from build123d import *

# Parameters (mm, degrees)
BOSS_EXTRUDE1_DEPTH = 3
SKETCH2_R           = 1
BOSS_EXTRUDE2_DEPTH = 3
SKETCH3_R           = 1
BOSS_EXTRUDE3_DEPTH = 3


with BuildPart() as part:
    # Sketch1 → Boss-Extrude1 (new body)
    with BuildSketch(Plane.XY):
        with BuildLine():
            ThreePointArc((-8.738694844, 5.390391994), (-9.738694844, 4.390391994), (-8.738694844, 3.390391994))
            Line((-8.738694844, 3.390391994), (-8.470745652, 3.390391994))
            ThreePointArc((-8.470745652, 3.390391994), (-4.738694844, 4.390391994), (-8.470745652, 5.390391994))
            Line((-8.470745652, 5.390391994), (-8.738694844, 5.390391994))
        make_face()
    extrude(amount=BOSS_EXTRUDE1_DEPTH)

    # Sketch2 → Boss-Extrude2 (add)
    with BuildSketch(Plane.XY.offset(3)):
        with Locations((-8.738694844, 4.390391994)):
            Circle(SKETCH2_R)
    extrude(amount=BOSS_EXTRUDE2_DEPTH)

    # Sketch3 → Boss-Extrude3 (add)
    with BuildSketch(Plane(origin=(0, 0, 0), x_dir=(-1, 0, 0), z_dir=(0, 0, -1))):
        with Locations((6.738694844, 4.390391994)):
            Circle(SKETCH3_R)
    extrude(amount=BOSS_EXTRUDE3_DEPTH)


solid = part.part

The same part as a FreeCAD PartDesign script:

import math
import FreeCAD as App
import Part
import Sketcher

V = App.Vector

doc = App.newDocument("Part")
body = doc.addObject("PartDesign::Body", "Body")

# Sketch on XY plane
sketch1 = body.newObject("Sketcher::SketchObject", "Sketch")
sketch1.AttachmentSupport = (doc.getObject("XY_Plane"), [""])
sketch1.MapMode = "FlatFace"
sketch1.addGeometry([
    Part.ArcOfCircle(Part.Circle(V(-8.738695, 4.390392, 0), V(0, 0, 1), 1), math.radians(90), math.radians(270)),
    Part.LineSegment(V(-8.738695, 3.390392, 0), V(-8.470746, 3.390392, 0)),
    Part.ArcOfCircle(Part.Circle(V(-6.738695, 4.390392, 0), V(0, 0, 1), 2), math.radians(-150), math.radians(150)),
    Part.LineSegment(V(-8.470746, 5.390392, 0), V(-8.738695, 5.390392, 0)),
], False)
sketch1.addConstraint([
    Sketcher.Constraint("Tangent", 0, 2, 1, 1),
    Sketcher.Constraint("Coincident", 1, 2, 2, 1),
    Sketcher.Constraint("Coincident", 2, 2, 3, 1),
    Sketcher.Constraint("Tangent", 3, 2, 0, 1),
    Sketcher.Constraint("Horizontal", 1),
    Sketcher.Constraint("Horizontal", 3),
    Sketcher.Constraint("Horizontal", 0, 3, 2, 3),
    Sketcher.Constraint("Radius", 0, 1.0),
    Sketcher.Constraint("Radius", 2, 2.0),
    Sketcher.Constraint("DistanceX", 0, 3, 2, 3, 2.0),
    Sketcher.Constraint("DistanceY", -1, 1, 0, 3, 4.390392),
    Sketcher.Constraint("DistanceX", 0, 3, -1, 1, 8.738695),
])
pad1 = body.newObject("PartDesign::Pad", "Pad")
pad1.Profile = sketch1
pad1.Length = 3

# Sketch on XY plane
sketch2 = body.newObject("Sketcher::SketchObject", "Sketch001")
sketch2.AttachmentSupport = (doc.getObject("XY_Plane"), [""])
sketch2.MapMode = "FlatFace"
sketch2.AttachmentOffset = App.Placement(V(0, 0, 3), App.Rotation())
sketch2.addGeometry(Part.Circle(V(-8.738695, 4.390392, 0), V(0, 0, 1), 1), False)
sketch2.addConstraint([
    Sketcher.Constraint("Diameter", 0, 2.0),
    Sketcher.Constraint("DistanceY", -1, 1, 0, 3, 4.390392),
    Sketcher.Constraint("DistanceX", 0, 3, -1, 1, 8.738695),
])
pad2 = body.newObject("PartDesign::Pad", "Pad001")
pad2.Profile = sketch2
pad2.Length = 3

# Sketch on XY plane
sketch3 = body.newObject("Sketcher::SketchObject", "Sketch002")
sketch3.AttachmentSupport = (doc.getObject("XY_Plane"), [""])
sketch3.MapMode = "FlatFace"
sketch3.addGeometry(Part.Circle(V(-6.738695, 4.390392, 0), V(0, 0, 1), 1), False)
sketch3.addConstraint([
    Sketcher.Constraint("Diameter", 0, 2.0),
    Sketcher.Constraint("DistanceY", -1, 1, 0, 3, 4.390392),
    Sketcher.Constraint("DistanceX", 0, 3, -1, 1, 6.738695),
])
pad3 = body.newObject("PartDesign::Pad", "Pad002")
pad3.Profile = sketch3
pad3.Length = 3
pad3.Reversed = True

doc.recompute()
